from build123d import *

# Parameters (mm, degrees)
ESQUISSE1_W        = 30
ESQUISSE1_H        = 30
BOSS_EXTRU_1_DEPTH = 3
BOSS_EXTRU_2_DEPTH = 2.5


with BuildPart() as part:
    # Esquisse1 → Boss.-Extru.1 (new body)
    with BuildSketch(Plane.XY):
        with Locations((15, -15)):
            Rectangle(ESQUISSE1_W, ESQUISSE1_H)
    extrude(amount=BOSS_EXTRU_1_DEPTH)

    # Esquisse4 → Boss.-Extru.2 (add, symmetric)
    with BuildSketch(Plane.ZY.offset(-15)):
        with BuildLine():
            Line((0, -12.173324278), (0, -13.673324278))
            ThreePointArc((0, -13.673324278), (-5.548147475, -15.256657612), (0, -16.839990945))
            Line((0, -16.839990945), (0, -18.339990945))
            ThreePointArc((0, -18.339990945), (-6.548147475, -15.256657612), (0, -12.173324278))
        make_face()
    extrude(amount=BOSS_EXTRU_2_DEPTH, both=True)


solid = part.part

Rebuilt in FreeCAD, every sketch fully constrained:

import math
import FreeCAD as App
import Part
import Sketcher

V = App.Vector
Q = App.Units.Quantity

doc = App.newDocument("Part")
body = doc.addObject("PartDesign::Body", "Body")

sketch1 = body.newObject("Sketcher::SketchObject", "Sketch")
sketch1.AttachmentSupport = (doc.getObject("XY_Plane"), [""])
sketch1.MapMode = "FlatFace"
sketch1.addGeometry(Part.LineSegment(V(0, 0, 0), V(0, -30, 0)), False)
sketch1.addGeometry(Part.LineSegment(V(0, -30, 0), V(30, -30, 0)), False)
sketch1.addGeometry(Part.LineSegment(V(30, -30, 0), V(30, 0, 0)), False)
sketch1.addGeometry(Part.LineSegment(V(30, 0, 0), V(0, 0, 0)), False)
sketch1.addConstraint(Sketcher.Constraint("Coincident", 0, 2, 1, 1))
sketch1.addConstraint(Sketcher.Constraint("Coincident", 1, 2, 2, 1))
sketch1.addConstraint(Sketcher.Constraint("Coincident", 2, 2, 3, 1))
sketch1.addConstraint(Sketcher.Constraint("Coincident", 3, 2, 0, 1))
sketch1.addConstraint(Sketcher.Constraint("Vertical", 0))
sketch1.addConstraint(Sketcher.Constraint("Horizontal", 1))
sketch1.addConstraint(Sketcher.Constraint("Vertical", 2))
sketch1.addConstraint(Sketcher.Constraint("Horizontal", 3))
sketch1.addConstraint(Sketcher.Constraint("Coincident", 3, 2, -1, 1))
sketch1.addConstraint(Sketcher.Constraint("Equal", 3, 0))
sketch1.addConstraint(Sketcher.Constraint("DistanceX", 1, 1, 1, 2, Q("30 mm")))
pad1 = body.newObject("PartDesign::Pad", "Pad")
pad1.Profile = sketch1
pad1.Length = 3

sketch2 = body.newObject("Sketcher::SketchObject", "Sketch001")
sketch2.AttachmentSupport = (doc.getObject("YZ_Plane"), [""])
sketch2.MapMode = "FlatFace"
sketch2.AttachmentOffset = App.Placement(V(0, 0, 15), App.Rotation())
sketch2.addGeometry(Part.LineSegment(V(-13.7, 0, 0), V(-12.2, 0, 0)), False)
sketch2.addGeometry(Part.ArcOfCircle(Part.Circle(V(-15.3, -2.5, 0), V(0, 0, 1), 4), math.radians(140), math.radians(400)), False)
sketch2.addGeometry(Part.LineSegment(V(-18.3, 0, 0), V(-16.8, 0, 0)), False)
sketch2.addGeometry(Part.ArcOfCircle(Part.Circle(V(-15.3, -2.5, 0), V(0, 0, 1), 3), math.radians(122), math.radians(418)), False)
sketch2.addConstraint(Sketcher.Constraint("Coincident", 0, 2, 1, 2))
sketch2.addConstraint(Sketcher.Constraint("Coincident", 1, 1, 2, 1))
sketch2.addConstraint(Sketcher.Constraint("Coincident", 2, 2, 3, 1))
sketch2.addConstraint(Sketcher.Constraint("Coincident", 3, 2, 0, 1))
sketch2.addConstraint(Sketcher.Constraint("Horizontal", 0))
sketch2.addConstraint(Sketcher.Constraint("Horizontal", 2))
sketch2.addConstraint(Sketcher.Constraint("Coincident", 3, 3, 1, 3))
sketch2.addConstraint(Sketcher.Constraint("PointOnObject", 0, 2, -1))
sketch2.addConstraint(Sketcher.Constraint("PointOnObject", 1, 1, -1))
sketch2.addConstraint(Sketcher.Constraint("Radius", 1, Q("4 mm")))
sketch2.addConstraint(Sketcher.Constraint("Radius", 3, Q("3 mm")))
sketch2.addConstraint(Sketcher.Constraint("DistanceX", 0, 1, 0, 2, Q("1.5 mm")))
sketch2.addConstraint(Sketcher.Constraint("DistanceX", 1, 1, -1, 1, Q("18.339991 mm")))
pad2 = body.newObject("PartDesign::Pad", "Pad001")
pad2.Profile = sketch2
pad2.Length = 5
pad2.Midplane = True

doc.recompute()
